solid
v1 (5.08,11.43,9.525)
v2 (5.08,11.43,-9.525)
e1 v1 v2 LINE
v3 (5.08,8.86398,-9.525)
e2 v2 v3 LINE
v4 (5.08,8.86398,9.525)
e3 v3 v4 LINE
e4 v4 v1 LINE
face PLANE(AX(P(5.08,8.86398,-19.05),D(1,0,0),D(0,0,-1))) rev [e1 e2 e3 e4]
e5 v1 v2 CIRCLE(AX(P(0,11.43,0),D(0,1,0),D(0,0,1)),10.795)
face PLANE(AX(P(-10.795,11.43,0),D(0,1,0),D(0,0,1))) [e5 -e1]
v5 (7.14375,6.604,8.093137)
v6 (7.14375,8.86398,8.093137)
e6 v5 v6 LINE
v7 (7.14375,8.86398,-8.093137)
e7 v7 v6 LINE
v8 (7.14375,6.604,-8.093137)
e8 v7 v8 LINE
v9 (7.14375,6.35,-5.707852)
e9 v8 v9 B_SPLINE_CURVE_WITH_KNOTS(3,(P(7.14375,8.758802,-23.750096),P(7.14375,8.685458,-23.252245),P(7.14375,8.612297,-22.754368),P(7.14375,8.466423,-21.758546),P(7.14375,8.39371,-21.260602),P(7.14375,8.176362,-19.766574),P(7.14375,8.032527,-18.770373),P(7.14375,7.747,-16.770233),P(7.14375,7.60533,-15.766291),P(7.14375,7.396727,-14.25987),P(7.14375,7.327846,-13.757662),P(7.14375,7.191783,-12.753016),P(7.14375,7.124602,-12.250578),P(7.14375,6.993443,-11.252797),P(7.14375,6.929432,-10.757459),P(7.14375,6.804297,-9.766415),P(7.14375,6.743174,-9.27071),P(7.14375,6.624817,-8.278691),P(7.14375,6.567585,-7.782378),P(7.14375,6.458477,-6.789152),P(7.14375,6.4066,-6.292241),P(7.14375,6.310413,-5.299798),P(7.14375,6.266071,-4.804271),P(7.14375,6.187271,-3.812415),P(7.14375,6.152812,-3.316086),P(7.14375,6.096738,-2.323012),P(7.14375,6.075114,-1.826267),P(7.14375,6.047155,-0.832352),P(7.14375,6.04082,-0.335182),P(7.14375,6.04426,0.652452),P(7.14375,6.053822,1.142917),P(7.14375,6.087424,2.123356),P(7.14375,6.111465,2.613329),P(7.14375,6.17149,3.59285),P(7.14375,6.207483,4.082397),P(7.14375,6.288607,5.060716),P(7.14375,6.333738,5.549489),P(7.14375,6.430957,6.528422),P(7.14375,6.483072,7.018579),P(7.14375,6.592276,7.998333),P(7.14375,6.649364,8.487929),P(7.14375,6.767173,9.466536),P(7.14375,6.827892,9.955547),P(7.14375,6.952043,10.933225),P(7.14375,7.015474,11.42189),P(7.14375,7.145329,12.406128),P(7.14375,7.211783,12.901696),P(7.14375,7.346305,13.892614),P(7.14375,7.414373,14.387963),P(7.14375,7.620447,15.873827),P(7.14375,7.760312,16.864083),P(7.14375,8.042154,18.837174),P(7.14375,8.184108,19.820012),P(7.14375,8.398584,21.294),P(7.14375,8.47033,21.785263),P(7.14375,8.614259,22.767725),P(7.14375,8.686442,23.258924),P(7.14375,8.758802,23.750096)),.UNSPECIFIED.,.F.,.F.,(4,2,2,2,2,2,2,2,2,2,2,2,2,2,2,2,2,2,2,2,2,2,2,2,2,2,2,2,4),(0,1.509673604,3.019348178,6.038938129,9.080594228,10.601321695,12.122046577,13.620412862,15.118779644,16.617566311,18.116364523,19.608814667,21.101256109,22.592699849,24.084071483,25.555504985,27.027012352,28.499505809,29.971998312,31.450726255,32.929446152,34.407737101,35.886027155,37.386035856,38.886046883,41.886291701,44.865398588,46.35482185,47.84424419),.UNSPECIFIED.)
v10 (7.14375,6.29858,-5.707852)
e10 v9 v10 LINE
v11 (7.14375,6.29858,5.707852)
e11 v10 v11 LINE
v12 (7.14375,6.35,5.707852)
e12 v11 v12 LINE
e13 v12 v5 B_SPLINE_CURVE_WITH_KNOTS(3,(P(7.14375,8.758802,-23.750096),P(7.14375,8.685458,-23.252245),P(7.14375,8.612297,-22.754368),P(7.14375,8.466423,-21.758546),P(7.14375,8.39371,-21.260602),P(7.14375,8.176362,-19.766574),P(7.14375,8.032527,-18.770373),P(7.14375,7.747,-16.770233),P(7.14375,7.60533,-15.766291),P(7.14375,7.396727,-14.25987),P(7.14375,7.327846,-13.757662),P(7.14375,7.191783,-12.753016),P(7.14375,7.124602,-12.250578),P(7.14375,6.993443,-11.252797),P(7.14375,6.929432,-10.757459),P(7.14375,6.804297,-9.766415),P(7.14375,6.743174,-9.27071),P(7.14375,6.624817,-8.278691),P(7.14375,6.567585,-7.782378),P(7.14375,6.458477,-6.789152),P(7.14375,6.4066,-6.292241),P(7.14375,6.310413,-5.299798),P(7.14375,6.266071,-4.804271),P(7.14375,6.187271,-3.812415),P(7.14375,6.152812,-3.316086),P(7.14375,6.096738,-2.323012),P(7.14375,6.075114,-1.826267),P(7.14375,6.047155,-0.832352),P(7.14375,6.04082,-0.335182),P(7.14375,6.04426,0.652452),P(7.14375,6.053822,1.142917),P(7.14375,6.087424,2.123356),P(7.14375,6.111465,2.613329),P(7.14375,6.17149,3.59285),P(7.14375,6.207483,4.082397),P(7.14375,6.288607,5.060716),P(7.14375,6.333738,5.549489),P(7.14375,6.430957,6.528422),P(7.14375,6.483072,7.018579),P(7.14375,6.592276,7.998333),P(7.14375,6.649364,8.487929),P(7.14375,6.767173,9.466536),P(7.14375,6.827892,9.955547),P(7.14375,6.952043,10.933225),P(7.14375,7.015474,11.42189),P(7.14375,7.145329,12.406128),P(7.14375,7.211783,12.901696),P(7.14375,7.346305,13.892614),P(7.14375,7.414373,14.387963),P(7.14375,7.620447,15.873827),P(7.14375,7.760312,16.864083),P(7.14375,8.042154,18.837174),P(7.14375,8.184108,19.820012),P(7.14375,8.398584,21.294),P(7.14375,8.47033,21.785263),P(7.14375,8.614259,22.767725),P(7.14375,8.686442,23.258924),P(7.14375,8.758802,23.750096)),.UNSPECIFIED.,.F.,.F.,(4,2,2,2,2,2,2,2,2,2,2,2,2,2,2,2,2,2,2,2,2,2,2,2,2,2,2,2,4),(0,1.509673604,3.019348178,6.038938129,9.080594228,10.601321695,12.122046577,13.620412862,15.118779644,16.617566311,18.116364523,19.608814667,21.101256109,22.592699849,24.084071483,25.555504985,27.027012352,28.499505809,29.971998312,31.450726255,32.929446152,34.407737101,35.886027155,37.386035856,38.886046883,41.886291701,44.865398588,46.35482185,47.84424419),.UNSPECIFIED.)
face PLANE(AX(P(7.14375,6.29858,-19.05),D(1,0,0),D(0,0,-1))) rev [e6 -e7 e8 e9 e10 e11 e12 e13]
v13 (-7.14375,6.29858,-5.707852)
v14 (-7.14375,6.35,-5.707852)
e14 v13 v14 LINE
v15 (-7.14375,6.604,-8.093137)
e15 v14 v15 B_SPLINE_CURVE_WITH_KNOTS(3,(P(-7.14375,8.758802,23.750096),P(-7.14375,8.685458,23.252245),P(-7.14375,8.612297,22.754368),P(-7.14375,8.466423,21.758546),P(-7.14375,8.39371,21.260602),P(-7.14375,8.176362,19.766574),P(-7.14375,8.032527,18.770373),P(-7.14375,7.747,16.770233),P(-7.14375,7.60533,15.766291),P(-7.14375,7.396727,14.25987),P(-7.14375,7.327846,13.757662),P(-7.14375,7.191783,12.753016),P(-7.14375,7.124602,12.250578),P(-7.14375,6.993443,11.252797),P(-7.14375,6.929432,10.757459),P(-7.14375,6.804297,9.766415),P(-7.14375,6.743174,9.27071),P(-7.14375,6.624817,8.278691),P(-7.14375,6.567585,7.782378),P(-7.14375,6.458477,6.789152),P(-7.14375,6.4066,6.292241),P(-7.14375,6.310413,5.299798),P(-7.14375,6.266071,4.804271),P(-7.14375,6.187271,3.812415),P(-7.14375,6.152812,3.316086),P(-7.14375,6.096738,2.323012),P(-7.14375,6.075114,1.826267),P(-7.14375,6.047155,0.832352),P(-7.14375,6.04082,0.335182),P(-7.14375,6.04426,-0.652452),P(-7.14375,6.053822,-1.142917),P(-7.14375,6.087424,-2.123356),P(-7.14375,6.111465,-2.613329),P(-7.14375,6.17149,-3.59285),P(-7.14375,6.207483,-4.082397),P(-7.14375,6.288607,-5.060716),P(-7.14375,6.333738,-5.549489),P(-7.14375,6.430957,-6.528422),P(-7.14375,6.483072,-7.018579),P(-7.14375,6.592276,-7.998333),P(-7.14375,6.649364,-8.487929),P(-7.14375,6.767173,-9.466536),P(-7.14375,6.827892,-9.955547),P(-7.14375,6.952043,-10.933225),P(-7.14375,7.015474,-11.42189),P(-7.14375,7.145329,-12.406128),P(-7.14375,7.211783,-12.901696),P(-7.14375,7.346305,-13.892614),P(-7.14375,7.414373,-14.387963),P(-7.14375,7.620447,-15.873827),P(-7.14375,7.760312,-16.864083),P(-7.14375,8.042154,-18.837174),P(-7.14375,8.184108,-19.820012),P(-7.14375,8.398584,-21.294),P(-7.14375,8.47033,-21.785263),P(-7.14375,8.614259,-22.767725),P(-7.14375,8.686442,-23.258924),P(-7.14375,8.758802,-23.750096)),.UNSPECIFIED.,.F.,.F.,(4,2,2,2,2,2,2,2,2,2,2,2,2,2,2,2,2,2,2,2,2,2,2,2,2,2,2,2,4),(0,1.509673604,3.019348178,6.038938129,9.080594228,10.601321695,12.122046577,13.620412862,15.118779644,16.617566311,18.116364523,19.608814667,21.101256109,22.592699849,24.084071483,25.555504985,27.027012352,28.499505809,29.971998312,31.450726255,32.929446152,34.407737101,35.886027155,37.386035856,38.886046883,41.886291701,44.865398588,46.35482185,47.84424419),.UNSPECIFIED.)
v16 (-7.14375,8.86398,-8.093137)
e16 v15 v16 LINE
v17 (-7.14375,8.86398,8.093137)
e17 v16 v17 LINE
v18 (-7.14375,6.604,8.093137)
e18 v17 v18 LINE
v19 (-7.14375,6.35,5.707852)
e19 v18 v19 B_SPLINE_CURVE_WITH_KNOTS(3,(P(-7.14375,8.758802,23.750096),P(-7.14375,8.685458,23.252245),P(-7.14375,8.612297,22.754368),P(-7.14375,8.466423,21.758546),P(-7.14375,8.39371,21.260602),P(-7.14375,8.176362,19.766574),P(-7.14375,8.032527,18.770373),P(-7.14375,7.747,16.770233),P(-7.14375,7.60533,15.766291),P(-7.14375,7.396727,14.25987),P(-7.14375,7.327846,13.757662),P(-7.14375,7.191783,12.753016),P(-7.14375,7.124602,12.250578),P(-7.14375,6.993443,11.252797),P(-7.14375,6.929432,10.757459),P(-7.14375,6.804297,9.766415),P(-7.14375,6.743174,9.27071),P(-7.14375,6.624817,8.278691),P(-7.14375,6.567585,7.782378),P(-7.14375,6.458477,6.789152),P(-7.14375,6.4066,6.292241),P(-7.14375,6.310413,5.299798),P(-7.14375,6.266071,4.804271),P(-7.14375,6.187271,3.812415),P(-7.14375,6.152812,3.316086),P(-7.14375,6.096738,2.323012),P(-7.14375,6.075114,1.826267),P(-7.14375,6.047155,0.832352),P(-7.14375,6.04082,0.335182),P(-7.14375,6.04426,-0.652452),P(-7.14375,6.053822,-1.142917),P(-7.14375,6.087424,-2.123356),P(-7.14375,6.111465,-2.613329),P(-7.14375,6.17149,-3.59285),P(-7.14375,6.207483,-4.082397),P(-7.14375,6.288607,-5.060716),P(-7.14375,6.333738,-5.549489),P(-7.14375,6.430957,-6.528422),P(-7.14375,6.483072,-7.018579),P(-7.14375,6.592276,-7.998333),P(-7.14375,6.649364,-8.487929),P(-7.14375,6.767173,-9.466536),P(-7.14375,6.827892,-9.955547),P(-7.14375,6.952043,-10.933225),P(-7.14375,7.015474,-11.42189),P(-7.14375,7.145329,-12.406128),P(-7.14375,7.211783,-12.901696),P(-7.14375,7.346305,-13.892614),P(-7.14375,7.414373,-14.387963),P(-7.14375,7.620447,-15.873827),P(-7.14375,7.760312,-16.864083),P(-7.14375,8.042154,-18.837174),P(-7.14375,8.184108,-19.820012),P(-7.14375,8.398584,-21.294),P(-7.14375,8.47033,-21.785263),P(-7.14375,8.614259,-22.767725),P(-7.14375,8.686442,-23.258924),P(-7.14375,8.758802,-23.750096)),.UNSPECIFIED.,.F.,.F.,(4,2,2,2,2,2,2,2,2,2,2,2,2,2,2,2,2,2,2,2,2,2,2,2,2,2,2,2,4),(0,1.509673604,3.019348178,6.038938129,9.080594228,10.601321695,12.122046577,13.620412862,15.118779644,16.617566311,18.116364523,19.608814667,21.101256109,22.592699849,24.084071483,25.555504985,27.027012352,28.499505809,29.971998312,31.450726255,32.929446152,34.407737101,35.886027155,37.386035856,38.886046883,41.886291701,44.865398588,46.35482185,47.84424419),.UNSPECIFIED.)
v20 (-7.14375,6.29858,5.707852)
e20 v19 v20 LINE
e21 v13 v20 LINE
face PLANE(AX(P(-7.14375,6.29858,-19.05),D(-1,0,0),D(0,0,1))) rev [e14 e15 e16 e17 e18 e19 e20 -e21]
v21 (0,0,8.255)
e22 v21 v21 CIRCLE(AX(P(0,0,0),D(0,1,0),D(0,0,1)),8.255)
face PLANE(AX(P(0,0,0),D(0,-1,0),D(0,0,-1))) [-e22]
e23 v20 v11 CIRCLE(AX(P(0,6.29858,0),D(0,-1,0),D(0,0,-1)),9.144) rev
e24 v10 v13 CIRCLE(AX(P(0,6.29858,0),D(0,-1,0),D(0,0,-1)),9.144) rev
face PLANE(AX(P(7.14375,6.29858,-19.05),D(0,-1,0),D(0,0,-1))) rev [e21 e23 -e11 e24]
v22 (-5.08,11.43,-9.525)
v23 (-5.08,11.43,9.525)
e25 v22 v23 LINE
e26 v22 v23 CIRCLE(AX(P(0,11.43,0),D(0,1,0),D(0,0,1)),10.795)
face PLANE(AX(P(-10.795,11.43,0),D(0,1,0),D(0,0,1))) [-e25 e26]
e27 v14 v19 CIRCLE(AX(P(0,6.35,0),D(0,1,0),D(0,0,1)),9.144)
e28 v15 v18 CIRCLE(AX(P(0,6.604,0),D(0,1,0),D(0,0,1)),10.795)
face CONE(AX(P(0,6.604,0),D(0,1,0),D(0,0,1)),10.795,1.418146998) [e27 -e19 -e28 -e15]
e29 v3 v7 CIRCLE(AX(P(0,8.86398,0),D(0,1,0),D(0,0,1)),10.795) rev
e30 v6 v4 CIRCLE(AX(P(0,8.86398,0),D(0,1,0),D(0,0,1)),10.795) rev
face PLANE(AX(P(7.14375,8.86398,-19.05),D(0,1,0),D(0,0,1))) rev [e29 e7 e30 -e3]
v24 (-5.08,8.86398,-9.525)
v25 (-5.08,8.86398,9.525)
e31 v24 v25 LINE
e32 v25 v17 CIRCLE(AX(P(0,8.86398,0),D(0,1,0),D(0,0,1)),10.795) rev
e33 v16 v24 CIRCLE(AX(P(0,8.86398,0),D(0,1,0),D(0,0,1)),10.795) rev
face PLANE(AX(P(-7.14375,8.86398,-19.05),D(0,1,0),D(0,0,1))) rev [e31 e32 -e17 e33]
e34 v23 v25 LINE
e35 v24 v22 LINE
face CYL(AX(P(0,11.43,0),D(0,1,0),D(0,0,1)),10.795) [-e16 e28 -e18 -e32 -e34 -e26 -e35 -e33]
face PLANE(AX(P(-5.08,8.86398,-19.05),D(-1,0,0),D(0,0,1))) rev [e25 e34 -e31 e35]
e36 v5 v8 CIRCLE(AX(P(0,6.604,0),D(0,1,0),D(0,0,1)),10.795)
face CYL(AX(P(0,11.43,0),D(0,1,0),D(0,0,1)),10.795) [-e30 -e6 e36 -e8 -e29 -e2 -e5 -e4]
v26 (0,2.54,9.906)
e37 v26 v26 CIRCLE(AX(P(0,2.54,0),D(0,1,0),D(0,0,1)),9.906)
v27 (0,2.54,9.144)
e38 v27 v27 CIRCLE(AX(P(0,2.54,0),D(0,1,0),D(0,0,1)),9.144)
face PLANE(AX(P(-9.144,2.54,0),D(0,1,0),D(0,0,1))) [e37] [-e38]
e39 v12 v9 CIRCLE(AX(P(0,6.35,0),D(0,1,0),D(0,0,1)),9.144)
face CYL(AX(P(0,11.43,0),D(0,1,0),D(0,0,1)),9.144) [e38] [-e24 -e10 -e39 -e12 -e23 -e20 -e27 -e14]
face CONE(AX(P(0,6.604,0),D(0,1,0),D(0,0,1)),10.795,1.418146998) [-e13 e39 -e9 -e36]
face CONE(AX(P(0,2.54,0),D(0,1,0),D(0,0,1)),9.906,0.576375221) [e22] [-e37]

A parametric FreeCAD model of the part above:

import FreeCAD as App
import Part
import Sketcher
Q = App.Units.Quantity


def add_polygon(sketch, points):
    """Adds a closed chain of lines whose ends are joined by coincident constraints."""
    first, n = sketch.GeometryCount, len(points)
    for a, b in zip(points, points[1:] + points[:1]):
        sketch.addGeometry(Part.LineSegment(App.Vector(*a, 0), App.Vector(*b, 0)), False)
    for i in range(n):
        sketch.addConstraint(Sketcher.Constraint("Coincident", first + i, 2, first + (i + 1) % n, 1))

doc = App.newDocument("Part")
body = doc.addObject("PartDesign::Body", "Body")

sketch1 = doc.addObject("Sketcher::SketchObject", "Sketch")
body.addObject(sketch1)
sketch1.AttachmentSupport = (doc.XY_Plane, [""])
sketch1.MapMode = "FlatFace"
add_polygon(sketch1, [(-8.3, 0), (0, 0), (0, 11.4), (-10.8, 11.4), (-10.8, 6.6), (-9.1, 6.3), (-9.1, 2.5), (-9.9, 2.5)])
sketch1.addConstraint([
    Sketcher.Constraint("Horizontal", 0),
    Sketcher.Constraint("Vertical", 1),
    Sketcher.Constraint("Horizontal", 2),
    Sketcher.Constraint("Vertical", 3),
    Sketcher.Constraint("Vertical", 5),
    Sketcher.Constraint("Horizontal", 6),
    Sketcher.Constraint("Coincident", 0, 2, -1, 1),
    Sketcher.Constraint("DistanceX", 6, 2, 6, 1, Q("0.03 in")),
    Sketcher.Constraint("DistanceY", 1, 1, 1, 2, Q("0.45 in")),
    Sketcher.Constraint("DistanceY", 3, 2, 3, 1, Q("0.19 in")),
    Sketcher.Constraint("DistanceY", 5, 2, 5, 1, Q("0.15 in")),
    Sketcher.Constraint("DistanceY", -1, 1, 5, 2, Q("0.1 in")),
    Sketcher.Constraint("DistanceX", 3, 2, 7, 2, Q("0.1 in")),
    Sketcher.Constraint("DistanceX", 0, 1, 0, 2, Q("0.325 in")),
    Sketcher.Constraint("DistanceX", 4, 2, -1, 1, Q("0.36 in")),
])
revolution = doc.addObject("PartDesign::Revolution", "Revolution")
body.addObject(revolution)
revolution.Profile = sketch1
revolution.ReferenceAxis = (sketch1, ["V_Axis"])
revolution.Angle = 360

sketch2 = doc.addObject("Sketcher::SketchObject", "Sketch001")
body.addObject(sketch2)
sketch2.AttachmentSupport = (doc.XY_Plane, [""])
sketch2.MapMode = "FlatFace"
add_polygon(sketch2, [(-7.1, 6.3), (7.1, 6.3), (7.1, 8.9), (5.1, 8.9), (5.1, 11.4), (-5.1, 11.4), (-5.1, 8.9), (-7.1, 8.9)])
sketch2.addConstraint([
    Sketcher.Constraint("Horizontal", 0),
    Sketcher.Constraint("Vertical", 1),
    Sketcher.Constraint("Horizontal", 2),
    Sketcher.Constraint("Vertical", 3),
    Sketcher.Constraint("Horizontal", 4),
    Sketcher.Constraint("Vertical", 5),
    Sketcher.Constraint("Horizontal", 6),
    Sketcher.Constraint("Vertical", 7),
    Sketcher.Constraint("Symmetric", 2, 2, 5, 2, -2),
    Sketcher.Constraint("Equal", 2, 6),
    Sketcher.Constraint("DistanceX", 4, 2, 4, 1, Q("0.4 in")),
    Sketcher.Constraint("DistanceX", 0, 1, 0, 2, Q("0.5625 in")),
    Sketcher.Constraint("DistanceY", 1, 1, 1, 2, Q("0.101 in")),
    Sketcher.Constraint("DistanceY", -1, 1, 3, 2, Q("0.45 in")),
    Sketcher.Constraint("DistanceY", 3, 1, 3, 2, Q("2.56602 mm")),
])
pocket1 = doc.addObject("PartDesign::Pocket", "Pocket")
body.addObject(pocket1)
pocket1.Profile = sketch2
pocket1.Length = Q("1.5 in")
pocket1.Midplane = True

doc.recompute()
